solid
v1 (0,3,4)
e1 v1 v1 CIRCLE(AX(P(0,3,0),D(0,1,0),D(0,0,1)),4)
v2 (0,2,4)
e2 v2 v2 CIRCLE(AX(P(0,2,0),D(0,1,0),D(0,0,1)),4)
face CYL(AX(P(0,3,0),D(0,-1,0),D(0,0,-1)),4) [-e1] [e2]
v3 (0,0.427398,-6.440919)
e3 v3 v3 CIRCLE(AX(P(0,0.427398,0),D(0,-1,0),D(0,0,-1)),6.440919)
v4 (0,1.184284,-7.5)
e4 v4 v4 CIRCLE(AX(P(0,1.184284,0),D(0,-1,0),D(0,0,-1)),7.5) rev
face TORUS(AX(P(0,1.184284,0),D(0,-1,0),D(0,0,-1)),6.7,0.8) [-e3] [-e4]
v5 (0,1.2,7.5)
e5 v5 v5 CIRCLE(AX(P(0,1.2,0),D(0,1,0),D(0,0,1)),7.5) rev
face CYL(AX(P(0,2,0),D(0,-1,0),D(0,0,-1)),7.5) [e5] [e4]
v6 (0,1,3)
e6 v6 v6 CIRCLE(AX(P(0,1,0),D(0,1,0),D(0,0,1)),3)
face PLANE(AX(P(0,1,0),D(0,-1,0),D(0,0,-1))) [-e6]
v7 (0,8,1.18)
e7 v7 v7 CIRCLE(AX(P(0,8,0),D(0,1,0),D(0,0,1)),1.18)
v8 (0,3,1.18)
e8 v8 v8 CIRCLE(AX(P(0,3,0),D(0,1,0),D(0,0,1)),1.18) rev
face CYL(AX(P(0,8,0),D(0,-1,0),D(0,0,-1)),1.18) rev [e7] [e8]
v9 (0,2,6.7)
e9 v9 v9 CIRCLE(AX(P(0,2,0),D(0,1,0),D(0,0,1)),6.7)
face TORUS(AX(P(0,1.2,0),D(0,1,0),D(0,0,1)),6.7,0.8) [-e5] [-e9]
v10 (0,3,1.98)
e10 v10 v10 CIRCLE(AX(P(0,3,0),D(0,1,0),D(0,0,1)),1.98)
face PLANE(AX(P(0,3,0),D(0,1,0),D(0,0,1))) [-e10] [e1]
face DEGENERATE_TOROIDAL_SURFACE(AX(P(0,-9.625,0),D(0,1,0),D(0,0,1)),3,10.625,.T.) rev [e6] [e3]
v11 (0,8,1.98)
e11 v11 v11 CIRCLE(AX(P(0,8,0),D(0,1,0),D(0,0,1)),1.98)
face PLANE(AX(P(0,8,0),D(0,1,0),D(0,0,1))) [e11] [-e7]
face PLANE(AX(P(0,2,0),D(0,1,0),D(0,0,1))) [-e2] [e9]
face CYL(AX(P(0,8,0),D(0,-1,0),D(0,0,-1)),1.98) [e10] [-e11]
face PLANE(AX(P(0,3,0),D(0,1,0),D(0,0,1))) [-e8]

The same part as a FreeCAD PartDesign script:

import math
import FreeCAD as App
import Part
import Sketcher
from FreeCAD import Vector


def edges_at(feature, points):
    """Names of the edges that pass closest to the given points."""
    edges = feature.Shape.Edges
    near = lambda p: min(range(len(edges)), key=lambda i: edges[i].distToShape(Part.Vertex(*p))[0])
    return sorted({f"Edge{near(p) + 1}" for p in points})

doc = App.newDocument("Part")
body = doc.addObject("PartDesign::Body", "Body")

# Sketch on XZ plane
sketch1 = body.newObject("Sketcher::SketchObject", "Sketch")
sketch1.AttachmentSupport = (doc.getObject("XZ_Plane"), [""])
sketch1.MapMode = "FlatFace"
sketch1.addGeometry(Part.Circle(Vector(0, 0, 0), Vector(0, 0, 1), 8), False)
sketch1.addConstraint([
    Sketcher.Constraint("Coincident", 0, 3, -1, 1),
    Sketcher.Constraint("Diameter", 0, 15.0),
])
pad1 = body.newObject("PartDesign::Pad", "Pad")
pad1.Profile = sketch1
pad1.Length = 2
pad1.Reversed = True

# Sketch on XZ plane
sketch2 = body.newObject("Sketcher::SketchObject", "Sketch001")
sketch2.AttachmentSupport = (doc.getObject("XZ_Plane"), [""])
sketch2.MapMode = "FlatFace"
sketch2.AttachmentOffset = App.Placement(Vector(0, 0, -2), App.Rotation())
sketch2.addGeometry(Part.Circle(Vector(0, 0, 0), Vector(0, 0, 1), 4), False)
sketch2.addConstraint([
    Sketcher.Constraint("Coincident", 0, 3, -1, 1),
    Sketcher.Constraint("Diameter", 0, 8.0),
])
pad2 = body.newObject("PartDesign::Pad", "Pad001")
pad2.Profile = sketch2
pad2.Length = 1
pad2.Reversed = True

# Sketch on XZ plane
sketch3 = body.newObject("Sketcher::SketchObject", "Sketch002")
sketch3.AttachmentSupport = (doc.getObject("XZ_Plane"), [""])
sketch3.MapMode = "FlatFace"
sketch3.AttachmentOffset = App.Placement(Vector(0, 0, -3), App.Rotation())
sketch3.addGeometry([
    Part.Circle(Vector(0, 0, 0), Vector(0, 0, 1), 2),
    Part.Circle(Vector(0, 0, 0), Vector(0, 0, 1), 1.2),
], False)
sketch3.addConstraint([
    Sketcher.Constraint("Coincident", 0, 3, -1, 1),
    Sketcher.Constraint("Coincident", 1, 3, -1, 1),
    Sketcher.Constraint("Diameter", 0, 3.96),
    Sketcher.Constraint("Diameter", 1, 2.36),
])
pad3 = body.newObject("PartDesign::Pad", "Pad002")
pad3.Profile = sketch3
pad3.Length = 5
pad3.Reversed = True

# Sketch on XY plane
sketch4 = body.newObject("Sketcher::SketchObject", "Sketch003")
sketch4.AttachmentSupport = (doc.getObject("XY_Plane"), [""])
sketch4.MapMode = "FlatFace"
sketch4.addGeometry([
    Part.LineSegment(Vector(0, 1, 0), Vector(0, 0, 0)),
    Part.LineSegment(Vector(0, 0, 0), Vector(7.5, 0, 0)),
    Part.ArcOfCircle(Part.Circle(Vector(3, -9.6, 0), Vector(0, 0, 1), 10.6), math.radians(65), math.radians(90)),
    Part.LineSegment(Vector(3, 1, 0), Vector(0, 1, 0)),
], False)
sketch4.addConstraint([
    Sketcher.Constraint("Coincident", 0, 2, 1, 1),
    Sketcher.Constraint("Coincident", 1, 2, 2, 1),
    Sketcher.Constraint("Tangent", 2, 2, 3, 1),
    Sketcher.Constraint("Coincident", 3, 2, 0, 1),
    Sketcher.Constraint("Vertical", 0),
    Sketcher.Constraint("Horizontal", 1),
    Sketcher.Constraint("Horizontal", 3),
    Sketcher.Constraint("Coincident", 0, 2, -1, 1),
    Sketcher.Constraint("DistanceX", 3, 2, 3, 1, 3.0),
    Sketcher.Constraint("DistanceY", 0, 2, 0, 1, 1.0),
    Sketcher.Constraint("DistanceX", 1, 1, 1, 2, 7.5),
])
groove = body.newObject("PartDesign::Groove", "Groove")
groove.Profile = sketch4
groove.ReferenceAxis = (sketch4, ["V_Axis"])
groove.Angle = 360
doc.recompute()

fillet = body.newObject("PartDesign::Fillet", "Fillet")
fillet.Base = (groove, edges_at(groove, [(0, 0, -7.5), (0, 2, -7.5)]))
fillet.Radius = 0.8

doc.recompute()
